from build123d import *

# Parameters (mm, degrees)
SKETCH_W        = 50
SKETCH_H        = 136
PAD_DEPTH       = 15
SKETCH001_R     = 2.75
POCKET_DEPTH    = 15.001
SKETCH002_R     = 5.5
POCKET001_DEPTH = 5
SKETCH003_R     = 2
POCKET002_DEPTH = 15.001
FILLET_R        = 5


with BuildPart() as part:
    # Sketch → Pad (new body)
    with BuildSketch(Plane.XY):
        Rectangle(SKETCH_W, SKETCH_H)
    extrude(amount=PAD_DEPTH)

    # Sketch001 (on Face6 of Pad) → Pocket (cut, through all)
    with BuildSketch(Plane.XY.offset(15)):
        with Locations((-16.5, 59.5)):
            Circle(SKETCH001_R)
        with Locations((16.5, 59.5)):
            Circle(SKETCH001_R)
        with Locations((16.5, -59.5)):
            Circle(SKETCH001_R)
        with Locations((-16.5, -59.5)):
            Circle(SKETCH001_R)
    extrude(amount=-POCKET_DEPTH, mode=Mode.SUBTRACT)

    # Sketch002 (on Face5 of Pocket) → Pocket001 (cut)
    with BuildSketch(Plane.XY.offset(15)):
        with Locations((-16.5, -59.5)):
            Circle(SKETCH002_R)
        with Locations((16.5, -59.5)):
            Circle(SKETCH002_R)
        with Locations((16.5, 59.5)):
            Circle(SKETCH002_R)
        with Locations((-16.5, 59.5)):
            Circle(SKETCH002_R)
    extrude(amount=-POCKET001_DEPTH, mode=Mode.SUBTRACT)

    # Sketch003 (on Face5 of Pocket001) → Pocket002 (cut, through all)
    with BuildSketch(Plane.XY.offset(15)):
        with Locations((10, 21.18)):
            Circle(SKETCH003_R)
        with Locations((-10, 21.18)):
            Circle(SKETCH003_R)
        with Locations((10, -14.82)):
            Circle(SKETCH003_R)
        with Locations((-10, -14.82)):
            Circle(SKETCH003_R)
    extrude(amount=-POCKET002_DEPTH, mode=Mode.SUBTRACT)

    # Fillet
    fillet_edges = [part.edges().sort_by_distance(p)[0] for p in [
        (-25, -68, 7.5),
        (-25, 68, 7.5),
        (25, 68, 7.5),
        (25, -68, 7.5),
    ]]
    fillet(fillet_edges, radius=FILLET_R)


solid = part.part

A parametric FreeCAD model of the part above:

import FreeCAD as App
import Part
import Sketcher
from FreeCAD import Vector
Q = App.Units.Quantity


def edges_at(feature, points):
    """Names of the edges that pass closest to the given points."""
    edges = feature.Shape.Edges
    near = lambda p: min(range(len(edges)), key=lambda i: edges[i].distToShape(Part.Vertex(*p))[0])
    return sorted({f"Edge{near(p) + 1}" for p in points})

doc = App.newDocument("Part")
body = doc.addObject("PartDesign::Body", "Body")

sketch1 = body.newObject("Sketcher::SketchObject", "Sketch")
sketch1.AttachmentSupport = (doc.getObject("XY_Plane"), [""])
sketch1.MapMode = "FlatFace"
sketch1.addGeometry([
    Part.LineSegment(Vector(-25, 68, 0), Vector(-25, -68, 0)),
    Part.LineSegment(Vector(-25, -68, 0), Vector(25, -68, 0)),
    Part.LineSegment(Vector(25, -68, 0), Vector(25, 68, 0)),
    Part.LineSegment(Vector(25, 68, 0), Vector(-25, 68, 0)),
], False)
sketch1.addConstraint([
    Sketcher.Constraint("Coincident", 0, 2, 1, 1),
    Sketcher.Constraint("Coincident", 1, 2, 2, 1),
    Sketcher.Constraint("Coincident", 2, 2, 3, 1),
    Sketcher.Constraint("Coincident", 3, 2, 0, 1),
    Sketcher.Constraint("Vertical", 0),
    Sketcher.Constraint("Horizontal", 1),
    Sketcher.Constraint("Vertical", 2),
    Sketcher.Constraint("Horizontal", 3),
    Sketcher.Constraint("Symmetric", 0, 2, 2, 2, -1, 1),
    Sketcher.Constraint("DistanceX", 1, 1, 1, 2, Q("50 mm")),
    Sketcher.Constraint("DistanceY", 0, 2, 0, 1, Q("136 mm")),
])
pad1 = body.newObject("PartDesign::Pad", "Pad")
pad1.Profile = sketch1
pad1.Length = 15

sketch2 = body.newObject("Sketcher::SketchObject", "Sketch001")
sketch2.AttachmentSupport = (doc.getObject("XY_Plane"), [""])
sketch2.MapMode = "FlatFace"
sketch2.AttachmentOffset = App.Placement(Vector(0, 0, 15), App.Rotation())
sketch2.addGeometry([
    Part.Circle(Vector(-16.5, 59.5, 0), Vector(0, 0, 1), 2.8),
    Part.Circle(Vector(16.5, 59.5, 0), Vector(0, 0, 1), 2.8),
    Part.Circle(Vector(16.5, -59.5, 0), Vector(0, 0, 1), 2.8),
    Part.Circle(Vector(-16.5, -59.5, 0), Vector(0, 0, 1), 2.8),
], False)
sketch2.addConstraint([
    Sketcher.Constraint("Equal", 0, 1),
    Sketcher.Constraint("Equal", 1, 2),
    Sketcher.Constraint("Equal", 2, 3),
    Sketcher.Constraint("Symmetric", 0, 3, 2, 3, -1, 1),
    Sketcher.Constraint("Symmetric", 1, 3, 3, 3, -1, 1),
    Sketcher.Constraint("Symmetric", 0, 3, 1, 3, -2),
    Sketcher.Constraint("Diameter", 0, Q("5.5 mm")),
    Sketcher.Constraint("DistanceX", 0, 3, 1, 3, Q("33 mm")),
    Sketcher.Constraint("DistanceY", 2, 3, 1, 3, Q("119 mm")),
])
pocket1 = body.newObject("PartDesign::Pocket", "Pocket")
pocket1.Profile = sketch2
pocket1.Type = "ThroughAll"

sketch3 = body.newObject("Sketcher::SketchObject", "Sketch002")
sketch3.AttachmentSupport = (doc.getObject("XY_Plane"), [""])
sketch3.MapMode = "FlatFace"
sketch3.AttachmentOffset = App.Placement(Vector(0, 0, 15), App.Rotation())
sketch3.addGeometry([
    Part.Circle(Vector(-16, -60, 0), Vector(0, 0, 1), 6),
    Part.Circle(Vector(16, -60, 0), Vector(0, 0, 1), 6),
    Part.Circle(Vector(16, 60, 0), Vector(0, 0, 1), 6),
    Part.Circle(Vector(-16, 60, 0), Vector(0, 0, 1), 6),
], False)
sketch3.addConstraint([
    Sketcher.Constraint("Equal", 0, 1),
    Sketcher.Constraint("Equal", 1, 2),
    Sketcher.Constraint("Equal", 2, 3),
    Sketcher.Constraint("Symmetric", 0, 3, 2, 3, -1, 1),
    Sketcher.Constraint("Symmetric", 1, 3, 3, 3, -1, 1),
    Sketcher.Constraint("Symmetric", 0, 3, 1, 3, -2),
    Sketcher.Constraint("Diameter", 0, Q("11 mm")),
    Sketcher.Constraint("DistanceX", 0, 3, 1, 3, Q("33 mm")),
    Sketcher.Constraint("DistanceY", 1, 3, 2, 3, Q("119 mm")),
])
pocket2 = body.newObject("PartDesign::Pocket", "Pocket001")
pocket2.Profile = sketch3
pocket2.Length = 5

sketch4 = body.newObject("Sketcher::SketchObject", "Sketch003")
sketch4.AttachmentSupport = (doc.getObject("XY_Plane"), [""])
sketch4.MapMode = "FlatFace"
sketch4.AttachmentOffset = App.Placement(Vector(0, 0, 15), App.Rotation())
sketch4.addGeometry([
    Part.Circle(Vector(10, 21.2, 0), Vector(0, 0, 1), 2),
    Part.Circle(Vector(-10, 21.2, 0), Vector(0, 0, 1), 2),
    Part.Circle(Vector(10, -14.8, 0), Vector(0, 0, 1), 2),
    Part.Circle(Vector(-10, -14.8, 0), Vector(0, 0, 1), 2),
], False)
sketch4.addConstraint([
    Sketcher.Constraint("Equal", 0, 1),
    Sketcher.Constraint("Equal", 1, 2),
    Sketcher.Constraint("Equal", 2, 3),
    Sketcher.Constraint("Symmetric", 0, 3, 1, 3, -2),
    Sketcher.Constraint("Symmetric", 2, 3, 3, 3, -2),
    Sketcher.Constraint("Vertical", 0, 3, 2, 3),
    Sketcher.Constraint("Diameter", 0, Q("4 mm")),
    Sketcher.Constraint("DistanceX", -1, 1, 0, 3, Q("10 mm")),
    Sketcher.Constraint("DistanceY", 2, 3, 0, 3, Q("36 mm")),
    Sketcher.Constraint("DistanceY", -1, 1, 0, 3, Q("21.18 mm")),
])
pocket3 = body.newObject("PartDesign::Pocket", "Pocket002")
pocket3.Profile = sketch4
pocket3.Type = "ThroughAll"
doc.recompute()

fillet = body.newObject("PartDesign::Fillet", "Fillet")
fillet.Base = (pocket3, edges_at(pocket3, [
    (-25, -68, 7.5),
    (-25, 68, 7.5),
    (25, 68, 7.5),
    (25, -68, 7.5),
]))
fillet.Radius = 5

doc.recompute()
